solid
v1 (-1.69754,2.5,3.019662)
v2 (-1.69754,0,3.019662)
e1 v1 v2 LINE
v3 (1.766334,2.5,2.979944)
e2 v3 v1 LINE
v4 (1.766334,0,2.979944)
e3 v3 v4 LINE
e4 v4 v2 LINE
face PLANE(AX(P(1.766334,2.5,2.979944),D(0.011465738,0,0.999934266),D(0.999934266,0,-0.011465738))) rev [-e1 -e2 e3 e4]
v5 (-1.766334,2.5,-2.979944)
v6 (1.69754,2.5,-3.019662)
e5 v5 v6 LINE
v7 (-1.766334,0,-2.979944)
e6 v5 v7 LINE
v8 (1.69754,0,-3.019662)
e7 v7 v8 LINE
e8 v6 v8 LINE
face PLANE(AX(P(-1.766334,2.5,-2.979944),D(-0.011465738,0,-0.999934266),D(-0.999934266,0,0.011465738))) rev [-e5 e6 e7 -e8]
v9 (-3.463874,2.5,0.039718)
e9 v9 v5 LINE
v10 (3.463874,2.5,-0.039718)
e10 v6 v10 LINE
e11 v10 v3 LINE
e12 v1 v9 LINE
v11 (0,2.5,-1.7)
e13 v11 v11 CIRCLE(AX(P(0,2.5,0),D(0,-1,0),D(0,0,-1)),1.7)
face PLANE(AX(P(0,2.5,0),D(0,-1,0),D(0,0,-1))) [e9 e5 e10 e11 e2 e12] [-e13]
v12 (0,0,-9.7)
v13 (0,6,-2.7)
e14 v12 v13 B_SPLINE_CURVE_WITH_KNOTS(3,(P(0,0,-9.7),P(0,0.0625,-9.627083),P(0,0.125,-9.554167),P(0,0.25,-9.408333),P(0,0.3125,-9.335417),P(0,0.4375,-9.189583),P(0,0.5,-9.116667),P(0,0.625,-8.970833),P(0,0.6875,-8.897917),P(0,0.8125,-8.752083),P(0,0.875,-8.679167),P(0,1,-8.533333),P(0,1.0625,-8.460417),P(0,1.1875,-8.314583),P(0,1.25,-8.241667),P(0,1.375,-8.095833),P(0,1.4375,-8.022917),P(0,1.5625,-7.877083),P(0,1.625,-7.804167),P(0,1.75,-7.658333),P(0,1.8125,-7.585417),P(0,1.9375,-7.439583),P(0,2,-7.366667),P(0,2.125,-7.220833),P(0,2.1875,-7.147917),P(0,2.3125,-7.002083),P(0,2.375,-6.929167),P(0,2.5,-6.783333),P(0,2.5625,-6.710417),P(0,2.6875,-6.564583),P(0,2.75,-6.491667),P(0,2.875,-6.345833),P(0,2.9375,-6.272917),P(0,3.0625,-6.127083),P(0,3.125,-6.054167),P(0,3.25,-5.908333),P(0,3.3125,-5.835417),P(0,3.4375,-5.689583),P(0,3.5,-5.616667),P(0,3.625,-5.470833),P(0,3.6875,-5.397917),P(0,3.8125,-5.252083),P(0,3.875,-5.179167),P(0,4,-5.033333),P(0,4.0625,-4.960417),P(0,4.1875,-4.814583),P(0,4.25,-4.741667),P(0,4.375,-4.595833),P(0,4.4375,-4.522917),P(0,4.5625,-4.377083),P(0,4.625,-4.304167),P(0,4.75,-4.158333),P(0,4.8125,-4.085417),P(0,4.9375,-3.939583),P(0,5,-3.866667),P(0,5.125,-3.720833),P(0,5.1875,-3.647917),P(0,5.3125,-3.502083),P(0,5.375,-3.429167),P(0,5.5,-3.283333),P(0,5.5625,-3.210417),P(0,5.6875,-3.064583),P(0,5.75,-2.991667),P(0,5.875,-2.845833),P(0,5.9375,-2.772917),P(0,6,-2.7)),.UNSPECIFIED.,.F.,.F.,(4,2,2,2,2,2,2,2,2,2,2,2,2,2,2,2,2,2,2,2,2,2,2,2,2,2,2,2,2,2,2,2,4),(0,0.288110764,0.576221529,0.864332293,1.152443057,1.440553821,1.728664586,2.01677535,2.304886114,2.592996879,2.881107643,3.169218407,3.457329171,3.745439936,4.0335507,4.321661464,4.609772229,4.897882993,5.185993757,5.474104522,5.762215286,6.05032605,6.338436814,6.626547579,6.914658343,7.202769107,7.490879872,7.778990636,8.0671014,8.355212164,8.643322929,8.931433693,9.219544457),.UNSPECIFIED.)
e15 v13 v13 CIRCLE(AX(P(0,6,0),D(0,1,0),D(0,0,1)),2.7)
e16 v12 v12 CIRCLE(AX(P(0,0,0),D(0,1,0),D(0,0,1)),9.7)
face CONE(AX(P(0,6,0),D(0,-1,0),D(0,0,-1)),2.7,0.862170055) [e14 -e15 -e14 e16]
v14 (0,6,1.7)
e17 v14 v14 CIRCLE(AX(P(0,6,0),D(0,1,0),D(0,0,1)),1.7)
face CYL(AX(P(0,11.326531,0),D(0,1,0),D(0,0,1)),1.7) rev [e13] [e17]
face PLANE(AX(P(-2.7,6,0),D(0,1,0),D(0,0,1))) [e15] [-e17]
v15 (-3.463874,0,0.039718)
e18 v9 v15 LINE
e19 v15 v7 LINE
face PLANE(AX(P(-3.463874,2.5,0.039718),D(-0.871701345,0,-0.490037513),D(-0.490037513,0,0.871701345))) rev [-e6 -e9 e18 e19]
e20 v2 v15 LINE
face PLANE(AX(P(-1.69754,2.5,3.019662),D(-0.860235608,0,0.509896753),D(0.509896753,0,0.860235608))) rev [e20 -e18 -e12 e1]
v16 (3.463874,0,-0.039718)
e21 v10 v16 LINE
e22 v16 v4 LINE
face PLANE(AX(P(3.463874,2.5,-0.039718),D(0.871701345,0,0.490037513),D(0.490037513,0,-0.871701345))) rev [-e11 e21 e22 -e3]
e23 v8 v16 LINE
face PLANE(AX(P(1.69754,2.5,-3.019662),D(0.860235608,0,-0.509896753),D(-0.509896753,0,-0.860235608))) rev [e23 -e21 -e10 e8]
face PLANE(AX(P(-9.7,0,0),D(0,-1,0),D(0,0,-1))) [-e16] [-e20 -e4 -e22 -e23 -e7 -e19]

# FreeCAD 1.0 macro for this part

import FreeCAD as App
import Part
import Sketcher
Q = App.Units.Quantity

doc = App.newDocument("Part")
body = doc.addObject("PartDesign::Body", "Body")

# Sketch on XY plane
sketch1 = body.newObject("Sketcher::SketchObject", "Sketch")
sketch1.AttachmentSupport = (doc.getObject("XY_Plane"), [""])
sketch1.MapMode = "FlatFace"
sketch1.addGeometry(Part.LineSegment(App.Vector(-2.7, 6, 0), App.Vector(-9.7, 0, 0)), False)
sketch1.addGeometry(Part.LineSegment(App.Vector(-9.7, 0, 0), App.Vector(-1.7, 0, 0)), False)
sketch1.addGeometry(Part.LineSegment(App.Vector(-1.7, 0, 0), App.Vector(-1.7, 6, 0)), False)
sketch1.addGeometry(Part.LineSegment(App.Vector(-1.7, 6, 0), App.Vector(-2.7, 6, 0)), False)
sketch1.addConstraint(Sketcher.Constraint("Coincident", 0, 2, 1, 1))
sketch1.addConstraint(Sketcher.Constraint("Coincident", 1, 2, 2, 1))
sketch1.addConstraint(Sketcher.Constraint("Coincident", 2, 2, 3, 1))
sketch1.addConstraint(Sketcher.Constraint("Coincident", 3, 2, 0, 1))
sketch1.addConstraint(Sketcher.Constraint("Horizontal", 1))
sketch1.addConstraint(Sketcher.Constraint("Vertical", 2))
sketch1.addConstraint(Sketcher.Constraint("Horizontal", 3))
sketch1.addConstraint(Sketcher.Constraint("PointOnObject", 0, 2, -1))
sketch1.addConstraint(Sketcher.Constraint("DistanceX", 1, 1, 1, 2, Q("8 mm")))
sketch1.addConstraint(Sketcher.Constraint("DistanceX", 3, 2, 3, 1, Q("1 mm")))
sketch1.addConstraint(Sketcher.Constraint("DistanceY", 2, 1, 2, 2, Q("6 mm")))
sketch1.addConstraint(Sketcher.Constraint("DistanceX", 0, 2, -1, 1, Q("9.7 mm")))
revolution = body.newObject("PartDesign::Revolution", "Revolution")
revolution.Profile = sketch1
revolution.ReferenceAxis = (sketch1, ["V_Axis"])
revolution.Angle = 360

# Sketch on XZ plane
sketch2 = body.newObject("Sketcher::SketchObject", "Sketch001")
sketch2.AttachmentSupport = (doc.getObject("XZ_Plane"), [""])
sketch2.MapMode = "FlatFace"
sketch2.addGeometry(Part.LineSegment(App.Vector(1.69754, -3.019662, 0), App.Vector(3.463874, -0.039718, 0)), False)
sketch2.addGeometry(Part.LineSegment(App.Vector(3.463874, -0.039718, 0), App.Vector(1.766334, 2.979944, 0)), False)
sketch2.addGeometry(Part.LineSegment(App.Vector(1.766334, 2.979944, 0), App.Vector(-1.69754, 3.019662, 0)), False)
sketch2.addGeometry(Part.LineSegment(App.Vector(-1.69754, 3.019662, 0), App.Vector(-3.463874, 0.039718, 0)), False)
sketch2.addGeometry(Part.LineSegment(App.Vector(-3.463874, 0.039718, 0), App.Vector(-1.766334, -2.979944, 0)), False)
sketch2.addGeometry(Part.LineSegment(App.Vector(-1.766334, -2.979944, 0), App.Vector(1.69754, -3.019662, 0)), False)
sketch2.addConstraint(Sketcher.Constraint("Coincident", 0, 2, 1, 1))
sketch2.addConstraint(Sketcher.Constraint("Coincident", 1, 2, 2, 1))
sketch2.addConstraint(Sketcher.Constraint("Coincident", 2, 2, 3, 1))
sketch2.addConstraint(Sketcher.Constraint("Coincident", 3, 2, 4, 1))
sketch2.addConstraint(Sketcher.Constraint("Coincident", 4, 2, 5, 1))
sketch2.addConstraint(Sketcher.Constraint("Coincident", 5, 2, 0, 1))
sketch2.addConstraint(Sketcher.Constraint("Symmetric", 0, 2, 3, 2, -1, 1))
sketch2.addConstraint(Sketcher.Constraint("Symmetric", 1, 2, 4, 2, -1, 1))
sketch2.addConstraint(Sketcher.Constraint("Symmetric", 2, 2, 5, 2, -1, 1))
sketch2.addConstraint(Sketcher.Constraint("Equal", 0, 1))
sketch2.addConstraint(Sketcher.Constraint("Equal", 1, 2))
sketch2.addConstraint(Sketcher.Constraint("Distance", 0, Q("3.464102 mm")))
sketch2.addConstraint(Sketcher.Constraint("DistanceY", 0, 2, -1, 1, Q("0.039718 mm")))
sketch2.addConstraint(Sketcher.Constraint("DistanceX", 2, 2, -1, 1, Q("1.69754 mm")))
sketch2.addConstraint(Sketcher.Constraint("DistanceX", 1, 2, 0, 2, Q("1.69754 mm")))
pocket1 = body.newObject("PartDesign::Pocket", "Pocket")
pocket1.Profile = sketch2
pocket1.Length = 2.5

doc.recompute()
